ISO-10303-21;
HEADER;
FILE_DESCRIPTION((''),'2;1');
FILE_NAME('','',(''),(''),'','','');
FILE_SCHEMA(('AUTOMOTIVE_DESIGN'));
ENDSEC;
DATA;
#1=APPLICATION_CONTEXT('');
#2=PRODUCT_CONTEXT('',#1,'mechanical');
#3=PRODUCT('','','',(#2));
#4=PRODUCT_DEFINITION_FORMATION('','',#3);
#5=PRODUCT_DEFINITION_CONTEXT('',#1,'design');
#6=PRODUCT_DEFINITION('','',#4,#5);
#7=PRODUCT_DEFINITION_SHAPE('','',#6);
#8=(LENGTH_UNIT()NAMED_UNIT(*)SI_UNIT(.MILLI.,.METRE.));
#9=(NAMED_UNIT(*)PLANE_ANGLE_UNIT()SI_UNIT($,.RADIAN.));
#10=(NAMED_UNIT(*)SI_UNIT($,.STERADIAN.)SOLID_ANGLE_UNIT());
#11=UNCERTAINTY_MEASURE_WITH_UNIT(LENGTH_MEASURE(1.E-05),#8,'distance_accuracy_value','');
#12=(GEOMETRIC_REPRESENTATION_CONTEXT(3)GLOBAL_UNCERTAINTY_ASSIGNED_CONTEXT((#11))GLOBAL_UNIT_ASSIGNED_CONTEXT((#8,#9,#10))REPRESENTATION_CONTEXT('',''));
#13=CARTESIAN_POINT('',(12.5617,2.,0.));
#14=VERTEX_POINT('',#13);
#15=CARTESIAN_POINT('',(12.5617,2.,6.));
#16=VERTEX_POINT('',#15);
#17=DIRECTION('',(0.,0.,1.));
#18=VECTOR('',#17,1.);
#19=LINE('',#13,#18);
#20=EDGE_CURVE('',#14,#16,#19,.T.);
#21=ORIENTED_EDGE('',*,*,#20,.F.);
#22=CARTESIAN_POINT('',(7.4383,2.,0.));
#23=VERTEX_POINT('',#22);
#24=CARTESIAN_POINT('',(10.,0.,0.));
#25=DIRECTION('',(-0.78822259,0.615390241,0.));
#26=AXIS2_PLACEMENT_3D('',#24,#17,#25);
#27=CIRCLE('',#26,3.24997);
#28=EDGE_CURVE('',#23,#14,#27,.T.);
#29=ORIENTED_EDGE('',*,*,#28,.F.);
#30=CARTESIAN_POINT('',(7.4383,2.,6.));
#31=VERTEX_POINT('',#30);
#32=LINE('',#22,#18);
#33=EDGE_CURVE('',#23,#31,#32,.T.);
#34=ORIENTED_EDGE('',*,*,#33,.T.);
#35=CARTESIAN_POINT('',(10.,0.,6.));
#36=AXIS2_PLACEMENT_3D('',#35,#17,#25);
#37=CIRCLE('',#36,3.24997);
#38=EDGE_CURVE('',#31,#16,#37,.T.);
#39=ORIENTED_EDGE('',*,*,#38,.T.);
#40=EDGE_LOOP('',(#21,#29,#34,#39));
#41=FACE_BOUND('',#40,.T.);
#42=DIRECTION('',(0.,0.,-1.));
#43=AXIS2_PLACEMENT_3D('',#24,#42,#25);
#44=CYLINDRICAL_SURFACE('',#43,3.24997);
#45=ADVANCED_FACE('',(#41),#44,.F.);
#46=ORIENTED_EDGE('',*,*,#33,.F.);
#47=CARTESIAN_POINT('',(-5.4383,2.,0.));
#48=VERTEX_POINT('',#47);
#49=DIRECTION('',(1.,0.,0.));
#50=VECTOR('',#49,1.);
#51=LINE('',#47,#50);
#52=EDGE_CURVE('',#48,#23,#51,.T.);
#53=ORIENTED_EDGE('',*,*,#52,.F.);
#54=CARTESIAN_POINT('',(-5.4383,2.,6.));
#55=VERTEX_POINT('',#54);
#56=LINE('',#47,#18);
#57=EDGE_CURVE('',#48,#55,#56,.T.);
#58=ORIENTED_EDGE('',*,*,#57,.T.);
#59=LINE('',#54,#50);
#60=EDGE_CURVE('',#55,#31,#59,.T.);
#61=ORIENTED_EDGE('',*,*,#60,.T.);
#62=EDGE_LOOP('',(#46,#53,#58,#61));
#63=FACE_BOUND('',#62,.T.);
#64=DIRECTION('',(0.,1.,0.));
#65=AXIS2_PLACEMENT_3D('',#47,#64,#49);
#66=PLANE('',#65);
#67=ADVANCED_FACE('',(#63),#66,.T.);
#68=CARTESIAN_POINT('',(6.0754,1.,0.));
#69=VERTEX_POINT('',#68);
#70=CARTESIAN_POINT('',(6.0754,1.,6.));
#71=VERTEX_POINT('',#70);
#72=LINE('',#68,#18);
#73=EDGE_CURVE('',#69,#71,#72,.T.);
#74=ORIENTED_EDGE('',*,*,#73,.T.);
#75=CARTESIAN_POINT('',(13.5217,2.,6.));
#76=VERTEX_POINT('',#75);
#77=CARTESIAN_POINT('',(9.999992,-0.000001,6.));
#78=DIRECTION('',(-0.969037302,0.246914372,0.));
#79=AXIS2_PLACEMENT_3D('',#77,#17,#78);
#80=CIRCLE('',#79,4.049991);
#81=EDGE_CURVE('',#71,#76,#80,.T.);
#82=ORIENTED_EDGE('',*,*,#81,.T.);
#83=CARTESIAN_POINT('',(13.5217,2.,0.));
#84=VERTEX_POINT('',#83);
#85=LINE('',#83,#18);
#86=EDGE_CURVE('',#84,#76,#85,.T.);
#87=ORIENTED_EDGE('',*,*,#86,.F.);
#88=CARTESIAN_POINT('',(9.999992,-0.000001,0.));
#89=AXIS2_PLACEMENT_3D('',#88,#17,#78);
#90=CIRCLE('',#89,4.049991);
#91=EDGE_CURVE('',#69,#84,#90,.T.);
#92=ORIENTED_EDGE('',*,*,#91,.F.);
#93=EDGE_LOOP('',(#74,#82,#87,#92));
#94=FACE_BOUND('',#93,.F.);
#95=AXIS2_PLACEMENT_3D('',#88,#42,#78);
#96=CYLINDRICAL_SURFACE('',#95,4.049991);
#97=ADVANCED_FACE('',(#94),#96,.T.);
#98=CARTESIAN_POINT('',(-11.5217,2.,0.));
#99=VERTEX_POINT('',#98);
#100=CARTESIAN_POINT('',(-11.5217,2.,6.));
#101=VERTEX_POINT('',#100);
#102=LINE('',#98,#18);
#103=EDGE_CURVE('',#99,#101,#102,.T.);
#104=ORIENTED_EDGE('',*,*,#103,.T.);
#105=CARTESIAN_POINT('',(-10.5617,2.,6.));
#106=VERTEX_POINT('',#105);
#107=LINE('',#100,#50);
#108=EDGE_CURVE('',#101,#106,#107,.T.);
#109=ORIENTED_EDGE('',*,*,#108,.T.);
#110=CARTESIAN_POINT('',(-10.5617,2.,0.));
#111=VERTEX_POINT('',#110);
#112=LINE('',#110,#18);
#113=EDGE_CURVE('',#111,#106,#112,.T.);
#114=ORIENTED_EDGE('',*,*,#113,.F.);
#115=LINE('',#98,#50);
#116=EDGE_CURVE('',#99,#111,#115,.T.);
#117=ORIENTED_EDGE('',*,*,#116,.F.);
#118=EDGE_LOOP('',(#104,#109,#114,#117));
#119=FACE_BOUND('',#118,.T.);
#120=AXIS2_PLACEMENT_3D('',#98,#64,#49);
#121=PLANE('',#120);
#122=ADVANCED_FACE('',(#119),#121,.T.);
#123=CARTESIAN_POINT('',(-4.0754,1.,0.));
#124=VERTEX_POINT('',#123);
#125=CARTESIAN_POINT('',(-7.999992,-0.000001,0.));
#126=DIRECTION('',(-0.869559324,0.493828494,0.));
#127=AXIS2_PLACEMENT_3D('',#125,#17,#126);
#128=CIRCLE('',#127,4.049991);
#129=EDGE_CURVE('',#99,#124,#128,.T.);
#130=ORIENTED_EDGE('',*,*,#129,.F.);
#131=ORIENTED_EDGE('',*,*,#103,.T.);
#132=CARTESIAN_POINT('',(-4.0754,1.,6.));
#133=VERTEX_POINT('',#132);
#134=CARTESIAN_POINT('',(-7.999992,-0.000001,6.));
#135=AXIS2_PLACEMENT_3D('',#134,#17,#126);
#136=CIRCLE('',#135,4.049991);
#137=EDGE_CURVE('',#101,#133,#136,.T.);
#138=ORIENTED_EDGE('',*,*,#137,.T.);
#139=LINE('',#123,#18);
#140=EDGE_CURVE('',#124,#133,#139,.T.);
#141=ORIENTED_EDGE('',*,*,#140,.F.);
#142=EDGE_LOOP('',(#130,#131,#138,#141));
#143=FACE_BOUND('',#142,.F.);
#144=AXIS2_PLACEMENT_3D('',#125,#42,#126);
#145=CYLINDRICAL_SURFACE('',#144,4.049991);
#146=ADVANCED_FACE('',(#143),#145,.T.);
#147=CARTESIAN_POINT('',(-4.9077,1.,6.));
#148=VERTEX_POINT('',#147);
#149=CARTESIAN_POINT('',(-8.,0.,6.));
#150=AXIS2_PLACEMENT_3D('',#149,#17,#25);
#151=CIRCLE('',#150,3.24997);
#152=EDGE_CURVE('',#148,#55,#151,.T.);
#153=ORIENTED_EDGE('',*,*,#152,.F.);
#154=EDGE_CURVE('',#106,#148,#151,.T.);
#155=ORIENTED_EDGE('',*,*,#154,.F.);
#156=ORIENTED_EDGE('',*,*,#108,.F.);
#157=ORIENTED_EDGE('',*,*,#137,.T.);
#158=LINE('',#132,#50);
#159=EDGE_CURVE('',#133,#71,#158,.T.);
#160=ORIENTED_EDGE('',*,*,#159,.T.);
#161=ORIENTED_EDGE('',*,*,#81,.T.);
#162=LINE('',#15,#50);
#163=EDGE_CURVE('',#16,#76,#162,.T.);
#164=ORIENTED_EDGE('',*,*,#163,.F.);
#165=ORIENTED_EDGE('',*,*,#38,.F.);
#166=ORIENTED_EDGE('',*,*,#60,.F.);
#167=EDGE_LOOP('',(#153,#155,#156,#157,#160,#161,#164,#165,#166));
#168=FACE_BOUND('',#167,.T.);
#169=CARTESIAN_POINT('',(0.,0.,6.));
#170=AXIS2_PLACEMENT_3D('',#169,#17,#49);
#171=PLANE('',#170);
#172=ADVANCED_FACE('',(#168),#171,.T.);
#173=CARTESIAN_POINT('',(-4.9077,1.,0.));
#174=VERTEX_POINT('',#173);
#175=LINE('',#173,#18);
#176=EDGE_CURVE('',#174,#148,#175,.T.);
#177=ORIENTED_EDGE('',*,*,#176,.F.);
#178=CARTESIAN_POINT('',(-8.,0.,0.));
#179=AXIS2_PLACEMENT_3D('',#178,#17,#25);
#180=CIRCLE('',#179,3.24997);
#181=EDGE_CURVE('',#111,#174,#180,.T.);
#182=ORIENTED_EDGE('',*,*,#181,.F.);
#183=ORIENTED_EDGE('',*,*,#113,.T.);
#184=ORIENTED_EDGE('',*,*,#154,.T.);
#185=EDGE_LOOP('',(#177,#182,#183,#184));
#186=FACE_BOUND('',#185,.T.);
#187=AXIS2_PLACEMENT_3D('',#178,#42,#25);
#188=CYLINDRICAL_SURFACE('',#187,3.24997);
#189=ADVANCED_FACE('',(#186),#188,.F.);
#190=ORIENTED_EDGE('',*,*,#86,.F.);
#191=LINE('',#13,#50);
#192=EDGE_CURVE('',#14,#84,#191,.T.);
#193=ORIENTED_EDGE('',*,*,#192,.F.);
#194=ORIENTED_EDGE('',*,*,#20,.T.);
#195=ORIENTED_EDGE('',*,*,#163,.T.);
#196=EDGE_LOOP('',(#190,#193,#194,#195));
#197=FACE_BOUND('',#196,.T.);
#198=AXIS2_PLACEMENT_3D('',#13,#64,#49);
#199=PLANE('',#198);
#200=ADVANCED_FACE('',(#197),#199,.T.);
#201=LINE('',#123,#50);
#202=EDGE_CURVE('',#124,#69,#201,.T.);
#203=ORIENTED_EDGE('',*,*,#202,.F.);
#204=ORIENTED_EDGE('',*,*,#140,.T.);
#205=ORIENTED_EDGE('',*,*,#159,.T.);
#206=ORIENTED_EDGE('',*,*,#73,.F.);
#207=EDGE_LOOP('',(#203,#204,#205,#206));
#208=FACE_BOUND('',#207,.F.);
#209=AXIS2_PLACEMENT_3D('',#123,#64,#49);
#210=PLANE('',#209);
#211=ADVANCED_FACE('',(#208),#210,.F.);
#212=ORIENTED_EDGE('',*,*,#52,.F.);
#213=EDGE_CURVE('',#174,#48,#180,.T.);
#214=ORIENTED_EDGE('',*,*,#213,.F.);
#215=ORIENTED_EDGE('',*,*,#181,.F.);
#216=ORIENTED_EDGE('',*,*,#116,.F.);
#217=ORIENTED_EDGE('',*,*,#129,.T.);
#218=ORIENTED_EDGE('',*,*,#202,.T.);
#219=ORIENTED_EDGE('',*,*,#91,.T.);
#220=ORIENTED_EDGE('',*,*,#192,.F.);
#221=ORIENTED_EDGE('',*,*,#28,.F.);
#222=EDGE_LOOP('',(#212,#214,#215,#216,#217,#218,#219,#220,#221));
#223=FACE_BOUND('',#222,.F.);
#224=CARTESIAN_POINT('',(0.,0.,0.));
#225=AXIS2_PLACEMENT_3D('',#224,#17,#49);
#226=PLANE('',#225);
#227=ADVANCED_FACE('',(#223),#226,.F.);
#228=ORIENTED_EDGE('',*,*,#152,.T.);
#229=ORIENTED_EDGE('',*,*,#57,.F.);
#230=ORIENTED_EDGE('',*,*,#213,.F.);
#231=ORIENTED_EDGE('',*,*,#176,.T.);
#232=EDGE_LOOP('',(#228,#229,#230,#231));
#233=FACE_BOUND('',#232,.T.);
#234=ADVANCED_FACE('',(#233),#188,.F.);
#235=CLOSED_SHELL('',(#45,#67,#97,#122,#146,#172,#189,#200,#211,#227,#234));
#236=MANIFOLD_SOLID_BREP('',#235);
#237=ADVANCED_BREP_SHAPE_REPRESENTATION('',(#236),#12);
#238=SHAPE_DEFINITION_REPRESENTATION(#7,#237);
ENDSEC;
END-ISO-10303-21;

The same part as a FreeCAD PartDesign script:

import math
import FreeCAD as App
import Part
import Sketcher

V = App.Vector

doc = App.newDocument("Part")
params = doc.addObject("Spreadsheet::Sheet", "Params")
for row, (alias, value) in enumerate([
    ("sketch1_radius", "3.25 mm"),
    ("sketch1_radius2", "4.05 mm"),
    ("pad1_length", "6 mm"),
], start=1):
    params.set(f"A{row}", alias)
    params.set(f"B{row}", "=" + value)
    params.setAlias(f"B{row}", alias)

body = doc.addObject("PartDesign::Body", "Body")

# Sketch on XY plane
sketch1 = body.newObject("Sketcher::SketchObject", "Sketch")
sketch1.AttachmentSupport = (doc.getObject("XY_Plane"), [""])
sketch1.MapMode = "FlatFace"
sketch1.addGeometry(Part.LineSegment(V(-10.6, 2, 0), V(-11.5, 2, 0)), False)
sketch1.addGeometry(Part.ArcOfCircle(Part.Circle(V(-8, 0, 0), V(0, 0, 1), 4), math.radians(150), math.radians(374)), False)
sketch1.addGeometry(Part.LineSegment(V(-4.1, 1, 0), V(6.1, 1, 0)), False)
sketch1.addGeometry(Part.ArcOfCircle(Part.Circle(V(10, 0, 0), V(0, 0, 1), 4), math.radians(166), math.radians(390)), False)
sketch1.addGeometry(Part.LineSegment(V(13.5, 2, 0), V(12.6, 2, 0)), False)
sketch1.addGeometry(Part.ArcOfCircle(Part.Circle(V(10, 0, 0), V(0, 0, 1), 3.2), math.radians(142), math.radians(398)), False)
sketch1.addGeometry(Part.LineSegment(V(7.4, 2, 0), V(-5.4, 2, 0)), False)
sketch1.addGeometry(Part.ArcOfCircle(Part.Circle(V(-8, 0, 0), V(0, 0, 1), 3.2), math.radians(142), math.radians(398)), False)
sketch1.addConstraint(Sketcher.Constraint("Coincident", 0, 2, 1, 1))
sketch1.addConstraint(Sketcher.Constraint("Coincident", 1, 2, 2, 1))
sketch1.addConstraint(Sketcher.Constraint("Coincident", 2, 2, 3, 1))
sketch1.addConstraint(Sketcher.Constraint("Coincident", 3, 2, 4, 1))
sketch1.addConstraint(Sketcher.Constraint("Coincident", 4, 2, 5, 2))
sketch1.addConstraint(Sketcher.Constraint("Coincident", 5, 1, 6, 1))
sketch1.addConstraint(Sketcher.Constraint("Coincident", 6, 2, 7, 2))
sketch1.addConstraint(Sketcher.Constraint("Coincident", 7, 1, 0, 1))
sketch1.addConstraint(Sketcher.Constraint("Horizontal", 0))
sketch1.addConstraint(Sketcher.Constraint("Horizontal", 2))
sketch1.addConstraint(Sketcher.Constraint("Horizontal", 4))
sketch1.addConstraint(Sketcher.Constraint("Horizontal", 6))
sketch1.addConstraint(Sketcher.Constraint("Coincident", 5, 3, 3, 3))
sketch1.addConstraint(Sketcher.Constraint("Coincident", 7, 3, 1, 3))
sketch1.addConstraint(Sketcher.Constraint("Equal", 1, 3))
sketch1.addConstraint(Sketcher.Constraint("Equal", 5, 7))
sketch1.addConstraint(Sketcher.Constraint("PointOnObject", 1, 3, -1))
sketch1.addConstraint(Sketcher.Constraint("PointOnObject", 3, 3, -1))
sketch1.addConstraint(Sketcher.Constraint("Horizontal", 0, 2, 3, 2))
sketch1.addConstraint(Sketcher.Constraint("Horizontal", 4, 2, 5, 1))
sketch1.addConstraint(Sketcher.Constraint("Radius", 5, 3.25))
sketch1.addConstraint(Sketcher.Constraint("Radius", 1, 4.05))
sketch1.addConstraint(Sketcher.Constraint("DistanceX", 1, 3, -1, 1, 8.0))
sketch1.addConstraint(Sketcher.Constraint("DistanceX", -1, 1, 3, 3, 10.0))
sketch1.addConstraint(Sketcher.Constraint("DistanceY", -1, 1, 0, 2, 2.0))
sketch1.addConstraint(Sketcher.Constraint("DistanceY", -1, 1, 1, 2, 1.0))
sketch1.setExpression("Constraints[20]", "Params.sketch1_radius")
sketch1.setExpression("Constraints[21]", "Params.sketch1_radius2")
pad1 = body.newObject("PartDesign::Pad", "Pad")
pad1.Profile = sketch1
pad1.setExpression("Length", "Params.pad1_length")

doc.recompute()
